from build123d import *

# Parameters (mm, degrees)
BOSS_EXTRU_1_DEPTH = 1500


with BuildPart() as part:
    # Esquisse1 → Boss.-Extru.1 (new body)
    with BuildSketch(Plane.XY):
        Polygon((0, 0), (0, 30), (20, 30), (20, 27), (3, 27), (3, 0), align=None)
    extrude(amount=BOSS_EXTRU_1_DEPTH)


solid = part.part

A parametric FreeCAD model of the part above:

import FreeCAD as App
import Part
import Sketcher
from FreeCAD import Vector
Q = App.Units.Quantity


def add_polygon(sketch, points):
    """Adds a closed chain of lines whose ends are joined by coincident constraints."""
    first, n = sketch.GeometryCount, len(points)
    for a, b in zip(points, points[1:] + points[:1]):
        sketch.addGeometry(Part.LineSegment(App.Vector(*a, 0), App.Vector(*b, 0)), False)
    for i in range(n):
        sketch.addConstraint(Sketcher.Constraint("Coincident", first + i, 2, first + (i + 1) % n, 1))

doc = App.newDocument("Part")
body = doc.addObject("PartDesign::Body", "Body")

# Sketch on XY plane
sketch1 = body.newObject("Sketcher::SketchObject", "Sketch")
sketch1.AttachmentSupport = (doc.getObject("XY_Plane"), [""])
sketch1.MapMode = "FlatFace"
add_polygon(sketch1, [(0, 30), (0, 0), (3, 0), (3, 27), (20, 27), (20, 30)])  # lines 0-5
sketch1.addConstraint([
    Sketcher.Constraint("Vertical", 0),
    Sketcher.Constraint("Horizontal", 1),
    Sketcher.Constraint("Vertical", 2),
    Sketcher.Constraint("Horizontal", 3),
    Sketcher.Constraint("Vertical", 4),
    Sketcher.Constraint("Horizontal", 5),
    Sketcher.Constraint("Coincident", 0, 2, -1, 1),
    Sketcher.Constraint("Equal", 1, 4),
    Sketcher.Constraint("DistanceX", 1, 1, 1, 2, Q("3 mm")),
    Sketcher.Constraint("DistanceX", 3, 1, 3, 2, Q("17 mm")),
    Sketcher.Constraint("DistanceY", 0, 2, 0, 1, Q("30 mm")),
])
pad1 = body.newObject("PartDesign::Pad", "Pad")
pad1.Profile = sketch1
pad1.Length = 1500

doc.recompute()
